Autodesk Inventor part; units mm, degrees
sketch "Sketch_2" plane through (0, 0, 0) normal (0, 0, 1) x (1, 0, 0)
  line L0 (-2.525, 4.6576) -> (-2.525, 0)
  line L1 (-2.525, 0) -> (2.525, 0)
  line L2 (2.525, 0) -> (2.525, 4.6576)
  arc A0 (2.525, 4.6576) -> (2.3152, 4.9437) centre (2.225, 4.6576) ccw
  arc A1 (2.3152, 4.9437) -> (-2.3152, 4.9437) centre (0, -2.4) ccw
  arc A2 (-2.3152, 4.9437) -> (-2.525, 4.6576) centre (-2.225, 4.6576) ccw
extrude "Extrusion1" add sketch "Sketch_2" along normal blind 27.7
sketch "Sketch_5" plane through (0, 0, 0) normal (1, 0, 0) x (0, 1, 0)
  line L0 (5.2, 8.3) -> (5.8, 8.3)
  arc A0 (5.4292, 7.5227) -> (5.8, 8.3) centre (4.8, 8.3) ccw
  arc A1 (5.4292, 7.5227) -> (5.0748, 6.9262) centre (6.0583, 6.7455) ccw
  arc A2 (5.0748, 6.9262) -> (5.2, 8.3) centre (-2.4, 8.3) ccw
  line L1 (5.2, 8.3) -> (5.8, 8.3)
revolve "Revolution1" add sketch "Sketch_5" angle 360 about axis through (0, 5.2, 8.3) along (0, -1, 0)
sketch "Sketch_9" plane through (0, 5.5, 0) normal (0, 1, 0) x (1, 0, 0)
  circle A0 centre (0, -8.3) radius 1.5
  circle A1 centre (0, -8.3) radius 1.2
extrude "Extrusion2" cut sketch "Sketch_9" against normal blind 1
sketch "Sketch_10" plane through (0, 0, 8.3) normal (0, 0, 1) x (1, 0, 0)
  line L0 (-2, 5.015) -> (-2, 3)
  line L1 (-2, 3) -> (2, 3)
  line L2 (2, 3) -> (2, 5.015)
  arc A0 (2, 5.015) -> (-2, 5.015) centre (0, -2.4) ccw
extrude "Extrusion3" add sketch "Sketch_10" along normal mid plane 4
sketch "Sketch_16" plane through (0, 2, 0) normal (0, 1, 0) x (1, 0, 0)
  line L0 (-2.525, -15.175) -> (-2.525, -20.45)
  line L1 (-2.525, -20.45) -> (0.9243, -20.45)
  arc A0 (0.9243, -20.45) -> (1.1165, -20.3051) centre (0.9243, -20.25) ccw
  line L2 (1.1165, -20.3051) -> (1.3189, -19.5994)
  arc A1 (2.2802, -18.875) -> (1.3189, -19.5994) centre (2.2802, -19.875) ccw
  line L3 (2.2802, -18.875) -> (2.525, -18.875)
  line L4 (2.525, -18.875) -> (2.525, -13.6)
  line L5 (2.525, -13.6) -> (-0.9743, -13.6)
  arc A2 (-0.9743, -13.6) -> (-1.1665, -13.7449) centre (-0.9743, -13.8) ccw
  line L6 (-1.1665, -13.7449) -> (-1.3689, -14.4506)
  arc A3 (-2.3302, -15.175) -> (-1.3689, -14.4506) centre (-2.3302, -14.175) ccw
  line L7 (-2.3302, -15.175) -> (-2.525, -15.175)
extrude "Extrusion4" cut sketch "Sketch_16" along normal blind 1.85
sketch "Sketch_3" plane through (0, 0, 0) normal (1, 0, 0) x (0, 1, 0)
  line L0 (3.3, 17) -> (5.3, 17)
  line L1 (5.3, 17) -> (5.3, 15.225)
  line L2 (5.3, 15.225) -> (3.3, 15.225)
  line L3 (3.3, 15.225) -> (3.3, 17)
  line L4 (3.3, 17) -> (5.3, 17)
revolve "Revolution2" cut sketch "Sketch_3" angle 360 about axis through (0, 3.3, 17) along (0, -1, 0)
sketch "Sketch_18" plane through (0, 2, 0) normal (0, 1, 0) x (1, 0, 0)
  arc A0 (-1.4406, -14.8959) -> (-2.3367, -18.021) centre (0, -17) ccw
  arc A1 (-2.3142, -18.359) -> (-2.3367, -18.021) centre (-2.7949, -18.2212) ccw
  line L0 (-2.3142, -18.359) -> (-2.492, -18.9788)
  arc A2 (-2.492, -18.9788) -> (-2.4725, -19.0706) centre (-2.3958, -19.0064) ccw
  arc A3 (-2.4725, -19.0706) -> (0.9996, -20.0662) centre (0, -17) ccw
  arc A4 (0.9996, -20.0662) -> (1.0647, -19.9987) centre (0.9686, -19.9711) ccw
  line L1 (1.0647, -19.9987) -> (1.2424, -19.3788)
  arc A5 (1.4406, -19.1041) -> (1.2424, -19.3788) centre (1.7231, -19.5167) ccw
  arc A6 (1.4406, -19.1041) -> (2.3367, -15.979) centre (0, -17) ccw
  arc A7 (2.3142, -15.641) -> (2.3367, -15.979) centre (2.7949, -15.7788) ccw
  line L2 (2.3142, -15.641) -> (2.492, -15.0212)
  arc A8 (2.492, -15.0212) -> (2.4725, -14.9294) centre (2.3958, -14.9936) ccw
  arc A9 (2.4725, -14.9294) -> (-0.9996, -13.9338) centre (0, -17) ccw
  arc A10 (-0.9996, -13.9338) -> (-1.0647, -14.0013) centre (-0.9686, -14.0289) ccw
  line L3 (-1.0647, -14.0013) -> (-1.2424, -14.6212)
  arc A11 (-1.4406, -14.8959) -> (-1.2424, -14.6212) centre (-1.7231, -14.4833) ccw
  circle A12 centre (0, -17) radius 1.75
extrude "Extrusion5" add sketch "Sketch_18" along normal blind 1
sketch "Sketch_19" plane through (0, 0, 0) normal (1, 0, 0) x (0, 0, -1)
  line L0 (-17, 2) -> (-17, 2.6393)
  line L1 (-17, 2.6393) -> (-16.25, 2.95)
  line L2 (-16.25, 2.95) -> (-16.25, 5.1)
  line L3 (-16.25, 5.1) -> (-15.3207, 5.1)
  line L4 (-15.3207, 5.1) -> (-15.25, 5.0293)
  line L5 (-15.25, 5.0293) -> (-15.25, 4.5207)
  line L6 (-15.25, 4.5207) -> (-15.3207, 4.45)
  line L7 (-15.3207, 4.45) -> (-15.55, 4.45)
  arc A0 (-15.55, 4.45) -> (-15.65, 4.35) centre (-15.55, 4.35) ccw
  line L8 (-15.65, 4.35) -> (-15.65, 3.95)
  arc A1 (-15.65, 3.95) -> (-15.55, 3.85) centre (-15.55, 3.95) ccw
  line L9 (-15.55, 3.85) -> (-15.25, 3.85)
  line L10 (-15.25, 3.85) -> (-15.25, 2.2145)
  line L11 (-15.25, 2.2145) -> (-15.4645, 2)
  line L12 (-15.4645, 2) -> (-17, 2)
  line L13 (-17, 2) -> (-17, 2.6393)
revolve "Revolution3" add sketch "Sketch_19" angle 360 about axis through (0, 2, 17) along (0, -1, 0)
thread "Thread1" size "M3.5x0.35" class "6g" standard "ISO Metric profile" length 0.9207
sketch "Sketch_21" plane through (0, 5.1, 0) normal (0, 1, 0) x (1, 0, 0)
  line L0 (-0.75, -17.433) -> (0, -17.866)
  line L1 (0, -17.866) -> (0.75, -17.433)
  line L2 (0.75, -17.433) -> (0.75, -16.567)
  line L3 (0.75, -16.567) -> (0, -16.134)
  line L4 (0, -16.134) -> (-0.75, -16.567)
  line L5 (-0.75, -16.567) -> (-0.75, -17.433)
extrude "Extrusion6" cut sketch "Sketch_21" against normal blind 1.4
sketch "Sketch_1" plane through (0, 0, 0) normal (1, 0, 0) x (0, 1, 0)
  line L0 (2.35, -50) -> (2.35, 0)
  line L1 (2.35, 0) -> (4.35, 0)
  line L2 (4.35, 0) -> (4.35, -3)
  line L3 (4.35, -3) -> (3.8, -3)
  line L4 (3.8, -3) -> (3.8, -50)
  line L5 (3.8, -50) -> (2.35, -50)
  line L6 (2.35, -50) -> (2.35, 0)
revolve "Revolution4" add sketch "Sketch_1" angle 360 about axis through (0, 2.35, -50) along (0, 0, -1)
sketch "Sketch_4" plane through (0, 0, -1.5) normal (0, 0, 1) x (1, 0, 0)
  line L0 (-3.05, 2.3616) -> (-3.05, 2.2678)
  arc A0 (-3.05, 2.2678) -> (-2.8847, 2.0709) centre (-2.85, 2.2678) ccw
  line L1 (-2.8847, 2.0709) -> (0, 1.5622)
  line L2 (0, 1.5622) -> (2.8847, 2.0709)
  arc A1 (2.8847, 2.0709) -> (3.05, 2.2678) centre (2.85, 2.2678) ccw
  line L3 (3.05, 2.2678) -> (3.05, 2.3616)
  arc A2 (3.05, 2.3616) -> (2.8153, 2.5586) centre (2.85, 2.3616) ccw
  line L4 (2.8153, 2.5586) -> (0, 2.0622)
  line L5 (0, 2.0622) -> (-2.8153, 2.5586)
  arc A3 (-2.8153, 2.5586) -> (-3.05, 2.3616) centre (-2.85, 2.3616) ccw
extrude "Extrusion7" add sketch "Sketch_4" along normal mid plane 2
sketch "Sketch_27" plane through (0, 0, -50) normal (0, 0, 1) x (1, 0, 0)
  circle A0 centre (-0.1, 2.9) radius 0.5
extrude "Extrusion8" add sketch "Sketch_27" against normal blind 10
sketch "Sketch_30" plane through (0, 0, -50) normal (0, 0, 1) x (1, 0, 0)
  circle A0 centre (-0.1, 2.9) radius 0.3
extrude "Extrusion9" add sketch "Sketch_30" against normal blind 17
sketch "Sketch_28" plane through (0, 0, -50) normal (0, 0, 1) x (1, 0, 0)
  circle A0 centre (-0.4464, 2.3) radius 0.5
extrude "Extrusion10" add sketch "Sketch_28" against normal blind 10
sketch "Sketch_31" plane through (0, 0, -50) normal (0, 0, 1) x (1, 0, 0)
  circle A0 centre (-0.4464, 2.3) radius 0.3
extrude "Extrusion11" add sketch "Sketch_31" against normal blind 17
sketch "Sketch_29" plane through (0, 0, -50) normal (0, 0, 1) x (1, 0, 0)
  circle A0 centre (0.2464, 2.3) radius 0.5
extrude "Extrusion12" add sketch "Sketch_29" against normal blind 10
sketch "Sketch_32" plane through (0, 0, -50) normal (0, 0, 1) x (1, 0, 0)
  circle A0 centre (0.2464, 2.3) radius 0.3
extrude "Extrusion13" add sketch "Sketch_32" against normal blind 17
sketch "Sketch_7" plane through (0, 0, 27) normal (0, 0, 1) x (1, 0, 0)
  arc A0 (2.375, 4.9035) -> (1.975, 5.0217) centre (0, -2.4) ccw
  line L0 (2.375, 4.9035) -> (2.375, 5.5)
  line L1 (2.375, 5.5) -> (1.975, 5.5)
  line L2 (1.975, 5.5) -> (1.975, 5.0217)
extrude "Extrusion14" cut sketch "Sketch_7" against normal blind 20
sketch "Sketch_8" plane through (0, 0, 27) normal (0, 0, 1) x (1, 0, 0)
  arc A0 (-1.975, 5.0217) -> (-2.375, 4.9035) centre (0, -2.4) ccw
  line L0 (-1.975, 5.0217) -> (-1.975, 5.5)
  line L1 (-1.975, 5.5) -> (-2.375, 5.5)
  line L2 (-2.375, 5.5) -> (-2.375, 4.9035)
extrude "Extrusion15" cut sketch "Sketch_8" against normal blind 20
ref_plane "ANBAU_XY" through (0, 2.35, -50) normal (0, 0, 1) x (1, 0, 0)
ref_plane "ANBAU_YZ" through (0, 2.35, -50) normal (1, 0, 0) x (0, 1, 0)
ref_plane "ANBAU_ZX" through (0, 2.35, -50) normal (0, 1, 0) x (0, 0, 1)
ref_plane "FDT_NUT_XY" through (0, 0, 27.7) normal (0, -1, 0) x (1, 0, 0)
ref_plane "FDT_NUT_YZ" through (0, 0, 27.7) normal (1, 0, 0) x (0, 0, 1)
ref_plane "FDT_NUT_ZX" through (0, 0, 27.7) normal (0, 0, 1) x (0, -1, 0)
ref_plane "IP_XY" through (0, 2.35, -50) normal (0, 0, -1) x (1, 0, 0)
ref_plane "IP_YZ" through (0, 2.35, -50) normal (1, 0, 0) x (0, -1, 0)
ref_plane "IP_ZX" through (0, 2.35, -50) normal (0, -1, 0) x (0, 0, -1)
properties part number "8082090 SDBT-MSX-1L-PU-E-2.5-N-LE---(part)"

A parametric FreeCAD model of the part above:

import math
import FreeCAD as App
import Part
import Sketcher
from FreeCAD import Vector
Q = App.Units.Quantity

doc = App.newDocument("Part")
params = doc.addObject("Spreadsheet::Sheet", "Params")
for row, (alias, value) in enumerate([
    ("sketch1_radius", "0.3 mm"),
    ("sketch1_radius2", "7.7 mm"),
    ("sketch1_width", "5.05 mm"),
    ("pad1_length", "27.7 mm"),
    ("sketch2_radius", "1 mm"),
    ("sketch2_radius2", "7.6 mm"),
    ("sketch2_width", "0.6 mm"),
    ("revolution_angle", "360 deg"),
    ("sketch3_diameter", "3 mm"),
    ("sketch3_diameter2", "2.4 mm"),
    ("pocket1_length", "1 mm"),
    ("sketch4_width", "4 mm"),
    ("sketch4_radius", "7.68 mm"),
    ("pad2_length", "4 mm"),
    ("sketch5_radius", "1 mm"),
    ("sketch5_radius2", "0.2 mm"),
    ("pocket2_length", "1.85 mm"),
    ("sketch6_width", "2 mm"),
    ("groove_angle", "360 deg"),
    ("sketch7_diameter", "3.5 mm"),
    ("sketch7_radius", "0.5 mm"),
    ("sketch7_radius2", "0.1 mm"),
    ("sketch7_radius3", "2.55 mm"),
    ("pad3_length", "1 mm"),
    ("sketch8_radius", "0.1 mm"),
    ("sketch8_width", "0.4 mm"),
    ("sketch8_width2", "3.1 mm"),
    ("sketch8_height", "0.3 mm"),
    ("sketch8_length", "0.1 mm"),
    ("revolution2_angle", "360 deg"),
    ("pocket3_length", "1.4 mm"),
    ("sketch10_width", "2 mm"),
    ("sketch10_height", "50 mm"),
    ("sketch10_height2", "47 mm"),
    ("sketch10_width2", "1.45 mm"),
    ("revolution3_angle", "360 deg"),
    ("sketch11_radius", "0.2 mm"),
    ("pad4_length", "2 mm"),
    ("sketch12_diameter", "1 mm"),
    ("pad5_length", "10 mm"),
    ("sketch13_diameter", "0.6 mm"),
    ("pad6_length", "17 mm"),
    ("sketch14_diameter", "1 mm"),
    ("pad7_length", "10 mm"),
    ("sketch15_diameter", "0.6 mm"),
    ("pad8_length", "17 mm"),
    ("sketch16_diameter", "1 mm"),
    ("pad9_length", "10 mm"),
    ("sketch17_diameter", "0.6 mm"),
    ("pad10_length", "17 mm"),
    ("sketch18_width", "0.4 mm"),
    ("pocket4_length", "20 mm"),
    ("sketch19_width", "0.4 mm"),
    ("pocket5_length", "20 mm"),
], start=1):
    params.set(f"A{row}", alias)
    params.set(f"B{row}", "=" + value)
    params.setAlias(f"B{row}", alias)

body = doc.addObject("PartDesign::Body", "Body")

# Sketch on XY plane
sketch1 = doc.addObject("Sketcher::SketchObject", "Sketch")
body.addObject(sketch1)
sketch1.AttachmentSupport = (doc.XY_Plane, [""])
sketch1.MapMode = "FlatFace"
sketch1.addGeometry([
    Part.ArcOfCircle(Part.Circle(Vector(-2.23, 4.66, 0), Vector(0, 0, 1), 0.3), math.radians(107), math.radians(180)),  # 0
    Part.LineSegment(Vector(-2.52, 4.66, 0), Vector(-2.52, 0, 0)),  # 1
    Part.LineSegment(Vector(-2.52, 0, 0), Vector(2.52, 0, 0)),  # 2
    Part.LineSegment(Vector(2.52, 0, 0), Vector(2.52, 4.66, 0)),  # 3
    Part.ArcOfCircle(Part.Circle(Vector(2.23, 4.66, 0), Vector(0, 0, 1), 0.3), math.radians(0), math.radians(73)),  # 4
    Part.ArcOfCircle(Part.Circle(Vector(0, -2.4, 0), Vector(0, 0, 1), 7.7), math.radians(73), math.radians(107)),  # 5
], False)
sketch1.addConstraint([
    Sketcher.Constraint("Tangent", 0, 2, 1, 1),
    Sketcher.Constraint("Coincident", 1, 2, 2, 1),
    Sketcher.Constraint("Coincident", 2, 2, 3, 1),
    Sketcher.Constraint("Tangent", 3, 2, 4, 1),
    Sketcher.Constraint("Tangent", 4, 2, 5, 1),
    Sketcher.Constraint("Tangent", 5, 2, 0, 1),
    Sketcher.Constraint("Vertical", 1),
    Sketcher.Constraint("Horizontal", 2),
    Sketcher.Constraint("Vertical", 3),
    Sketcher.Constraint("Equal", 0, 4),
    Sketcher.Constraint("Symmetric", 1, 2, 2, 2, -1, 1),
    Sketcher.Constraint("PointOnObject", 5, 3, -2),
    Sketcher.Constraint("Radius", 0, 0.3),
    Sketcher.Constraint("Radius", 5, 7.7),
    Sketcher.Constraint("DistanceX", 2, 1, 2, 2, 5.05),
    Sketcher.Constraint("DistanceY", 5, 3, -1, 1, 2.4),
])
sketch1.setExpression("Constraints[12]", "Params.sketch1_radius")
sketch1.setExpression("Constraints[13]", "Params.sketch1_radius2")
sketch1.setExpression("Constraints[14]", "Params.sketch1_width")
pad1 = doc.addObject("PartDesign::Pad", "Pad")
body.addObject(pad1)
pad1.Profile = sketch1
pad1.setExpression("Length", "Params.pad1_length")

# Sketch on YZ plane
sketch2 = doc.addObject("Sketcher::SketchObject", "Sketch001")
body.addObject(sketch2)
sketch2.AttachmentSupport = (doc.YZ_Plane, [""])
sketch2.MapMode = "FlatFace"
sketch2.addGeometry([
    Part.LineSegment(Vector(5.8, 8.3, 0), Vector(5.2, 8.3, 0)),
    Part.ArcOfCircle(Part.Circle(Vector(-2.4, 8.3, 0), Vector(0, 0, 1), 7.6), math.radians(-10.41), math.radians(0)),
    Part.ArcOfCircle(Part.Circle(Vector(6.1, 6.7, 0), Vector(0, 0, 1), 1), math.radians(129), math.radians(170)),
    Part.ArcOfCircle(Part.Circle(Vector(4.8, 8.3, 0), Vector(0, 0, 1), 1), math.radians(-51), math.radians(0)),
], False)
sketch2.addGeometry(Part.LineSegment(Vector(6.1, 8.3, 0), Vector(-2.4, 8.3, 0)), True)  # axis
sketch2.addConstraint([
    Sketcher.Constraint("Coincident", 0, 2, 1, 2),
    Sketcher.Constraint("Tangent", 1, 1, 2, 2),
    Sketcher.Constraint("Tangent", 2, 1, 3, 1),
    Sketcher.Constraint("Coincident", 3, 2, 0, 1),
    Sketcher.Constraint("Horizontal", 0),
    Sketcher.Constraint("Horizontal", 4),
    Sketcher.Constraint("Coincident", 4, 2, 1, 3),
    Sketcher.Constraint("Equal", 2, 3),
    Sketcher.Constraint("Horizontal", 1, 3, 3, 3),
    Sketcher.Constraint("Horizontal", 3, 3, 0, 2),
    Sketcher.Constraint("Vertical", 2, 3, 4, 1),
    Sketcher.Constraint("Radius", 2, 1.0),
    Sketcher.Constraint("Radius", 1, 7.6),
    Sketcher.Constraint("DistanceX", 0, 2, 0, 1, 0.6),
    Sketcher.Constraint("DistanceX", 1, 3, -1, 1, 2.4),
    Sketcher.Constraint("DistanceY", -1, 1, 1, 3, 8.3),
])
sketch2.setExpression("Constraints[11]", "Params.sketch2_radius")
sketch2.setExpression("Constraints[12]", "Params.sketch2_radius2")
sketch2.setExpression("Constraints[13]", "Params.sketch2_width")
revolution = doc.addObject("PartDesign::Revolution", "Revolution")
body.addObject(revolution)
revolution.Profile = sketch2
revolution.ReferenceAxis = (sketch2, ["Axis0"])
revolution.setExpression("Angle", "Params.revolution_angle")

# Sketch on XZ plane
sketch3 = doc.addObject("Sketcher::SketchObject", "Sketch002")
body.addObject(sketch3)
sketch3.AttachmentSupport = (doc.XZ_Plane, [""])
sketch3.MapMode = "FlatFace"
sketch3.AttachmentOffset = App.Placement(Vector(0, 0, -5.5), App.Rotation())
sketch3.addGeometry([
    Part.Circle(Vector(0, 8.3, 0), Vector(0, 0, 1), 1.5),
    Part.Circle(Vector(0, 8.3, 0), Vector(0, 0, 1), 1.2),
], False)
sketch3.addConstraint([
    Sketcher.Constraint("Coincident", 1, 3, 0, 3),
    Sketcher.Constraint("PointOnObject", 0, 3, -2),
    Sketcher.Constraint("Diameter", 0, 3.0),
    Sketcher.Constraint("Diameter", 1, 2.4),
    Sketcher.Constraint("DistanceY", -1, 1, 0, 3, 8.3),
])
sketch3.setExpression("Constraints[2]", "Params.sketch3_diameter")
sketch3.setExpression("Constraints[3]", "Params.sketch3_diameter2")
pocket1 = doc.addObject("PartDesign::Pocket", "Pocket")
body.addObject(pocket1)
pocket1.Profile = sketch3
pocket1.setExpression("Length", "Params.pocket1_length")
pocket1.Reversed = True

# Sketch on XY plane
sketch4 = doc.addObject("Sketcher::SketchObject", "Sketch003")
body.addObject(sketch4)
sketch4.AttachmentSupport = (doc.XY_Plane, [""])
sketch4.MapMode = "FlatFace"
sketch4.AttachmentOffset = App.Placement(Vector(0, 0, 8.3), App.Rotation())
sketch4.addGeometry([
    Part.ArcOfCircle(Part.Circle(Vector(0, -2.4, 0), Vector(0, 0, 1), 7.7), math.radians(75), math.radians(105)),
    Part.LineSegment(Vector(-2, 5, 0), Vector(-2, 3, 0)),
    Part.LineSegment(Vector(-2, 3, 0), Vector(2, 3, 0)),
    Part.LineSegment(Vector(2, 3, 0), Vector(2, 5, 0)),
], False)
sketch4.addConstraint([
    Sketcher.Constraint("Coincident", 0, 2, 1, 1),
    Sketcher.Constraint("Coincident", 1, 2, 2, 1),
    Sketcher.Constraint("Coincident", 2, 2, 3, 1),
    Sketcher.Constraint("Coincident", 3, 2, 0, 1),
    Sketcher.Constraint("Vertical", 1),
    Sketcher.Constraint("Horizontal", 2),
    Sketcher.Constraint("Vertical", 3),
    Sketcher.Constraint("Symmetric", 0, 2, 3, 2, -2),
    Sketcher.Constraint("DistanceX", 2, 1, 2, 2, 4.0),
    Sketcher.Constraint("Radius", 0, 7.68),
    Sketcher.Constraint("DistanceY", -1, 1, 1, 2, 3.0),
    Sketcher.Constraint("DistanceY", 0, 3, -1, 1, 2.4),
])
sketch4.setExpression("Constraints[8]", "Params.sketch4_width")
sketch4.setExpression("Constraints[9]", "Params.sketch4_radius")
pad2 = doc.addObject("PartDesign::Pad", "Pad001")
body.addObject(pad2)
pad2.Profile = sketch4
pad2.setExpression("Length", "Params.pad2_length")
pad2.Midplane = True

# Sketch on XZ plane
sketch5 = doc.addObject("Sketcher::SketchObject", "Sketch004")
body.addObject(sketch5)
sketch5.AttachmentSupport = (doc.XZ_Plane, [""])
sketch5.MapMode = "FlatFace"
sketch5.AttachmentOffset = App.Placement(Vector(0, 0, -2), App.Rotation())
sketch5.addGeometry([
    Part.LineSegment(Vector(-2.33, 15.18, 0), Vector(-2.52, 15.18, 0)),  # 0
    Part.LineSegment(Vector(-2.52, 15.18, 0), Vector(-2.52, 20.45, 0)),  # 1
    Part.LineSegment(Vector(-2.52, 20.45, 0), Vector(0.92, 20.45, 0)),  # 2
    Part.ArcOfCircle(Part.Circle(Vector(0.92, 20.25, 0), Vector(0, 0, 1), 0.2), math.radians(16), math.radians(90)),  # 3
    Part.LineSegment(Vector(1.12, 20.31, 0), Vector(1.32, 19.6, 0)),  # 4
    Part.ArcOfCircle(Part.Circle(Vector(2.28, 19.88, 0), Vector(0, 0, 1), 1), math.radians(-164), math.radians(-90)),  # 5
    Part.LineSegment(Vector(2.28, 18.88, 0), Vector(2.52, 18.88, 0)),  # 6
    Part.LineSegment(Vector(2.52, 18.88, 0), Vector(2.52, 13.6, 0)),  # 7
    Part.LineSegment(Vector(2.52, 13.6, 0), Vector(-0.97, 13.6, 0)),  # 8
    Part.ArcOfCircle(Part.Circle(Vector(-0.97, 13.8, 0), Vector(0, 0, 1), 0.2), math.radians(-164), math.radians(-90)),  # 9
    Part.LineSegment(Vector(-1.17, 13.74, 0), Vector(-1.37, 14.45, 0)),  # 10
    Part.ArcOfCircle(Part.Circle(Vector(-2.33, 14.18, 0), Vector(0, 0, 1), 1), math.radians(16), math.radians(90)),  # 11
], False)
sketch5.addConstraint([
    Sketcher.Constraint("Coincident", 0, 2, 1, 1),
    Sketcher.Constraint("Coincident", 1, 2, 2, 1),
    Sketcher.Constraint("Tangent", 2, 2, 3, 2),
    Sketcher.Constraint("Tangent", 3, 1, 4, 1),
    Sketcher.Constraint("Tangent", 4, 2, 5, 1),
    Sketcher.Constraint("Tangent", 5, 2, 6, 1),
    Sketcher.Constraint("Coincident", 6, 2, 7, 1),
    Sketcher.Constraint("Coincident", 7, 2, 8, 1),
    Sketcher.Constraint("Tangent", 8, 2, 9, 2),
    Sketcher.Constraint("Tangent", 9, 1, 10, 1),
    Sketcher.Constraint("Tangent", 10, 2, 11, 1),
    Sketcher.Constraint("Tangent", 11, 2, 0, 1),
    Sketcher.Constraint("Horizontal", 0),
    Sketcher.Constraint("Vertical", 1),
    Sketcher.Constraint("Horizontal", 2),
    Sketcher.Constraint("Horizontal", 6),
    Sketcher.Constraint("Vertical", 7),
    Sketcher.Constraint("Horizontal", 8),
    Sketcher.Constraint("Equal", 3, 9),
    Sketcher.Constraint("Equal", 5, 11),
    Sketcher.Constraint("Parallel", 4, 10),
    Sketcher.Constraint("Equal", 1, 7),
    Sketcher.Constraint("Radius", 5, 1.0),
    Sketcher.Constraint("Radius", 3, 0.2),
    Sketcher.Constraint("DistanceY", -1, 1, 9, 3, 13.8),
    Sketcher.Constraint("DistanceY", 11, 3, 5, 3, 5.7),
    Sketcher.Constraint("DistanceY", 1, 1, 1, 2, 5.275),
    Sketcher.Constraint("DistanceY", 5, 3, 3, 1, 0.43),
    Sketcher.Constraint("DistanceX", 0, 2, 7, 2, 5.05),
    Sketcher.Constraint("DistanceX", 0, 2, 0, 1, 0.1948),
    Sketcher.Constraint("DistanceX", 2, 1, 2, 2, 3.4493),
    Sketcher.Constraint("DistanceX", 0, 2, -1, 1, 2.525),
])
sketch5.setExpression("Constraints[22]", "Params.sketch5_radius")
sketch5.setExpression("Constraints[23]", "Params.sketch5_radius2")
pocket2 = doc.addObject("PartDesign::Pocket", "Pocket001")
body.addObject(pocket2)
pocket2.Profile = sketch5
pocket2.setExpression("Length", "Params.pocket2_length")

# Sketch on YZ plane
sketch6 = doc.addObject("Sketcher::SketchObject", "Sketch005")
body.addObject(sketch6)
sketch6.AttachmentSupport = (doc.YZ_Plane, [""])
sketch6.MapMode = "FlatFace"
sketch6.addGeometry([
    Part.LineSegment(Vector(5.3, 17, 0), Vector(3.3, 17, 0)),
    Part.LineSegment(Vector(3.3, 17, 0), Vector(3.3, 15.2, 0)),
    Part.LineSegment(Vector(3.3, 15.2, 0), Vector(5.3, 15.2, 0)),
    Part.LineSegment(Vector(5.3, 15.2, 0), Vector(5.3, 17, 0)),
], False)
sketch6.addGeometry(Part.LineSegment(Vector(5.3, 17, 0), Vector(3.3, 17, 0)), True)  # axis
sketch6.addConstraint([
    Sketcher.Constraint("Coincident", 0, 2, 1, 1),
    Sketcher.Constraint("Coincident", 1, 2, 2, 1),
    Sketcher.Constraint("Coincident", 2, 2, 3, 1),
    Sketcher.Constraint("Coincident", 3, 2, 0, 1),
    Sketcher.Constraint("Horizontal", 0),
    Sketcher.Constraint("Vertical", 1),
    Sketcher.Constraint("Horizontal", 2),
    Sketcher.Constraint("Vertical", 3),
    Sketcher.Constraint("Horizontal", 4),
    Sketcher.Constraint("Coincident", 4, 1, 3, 2),
    Sketcher.Constraint("Vertical", 1, 2, 4, 2),
    Sketcher.Constraint("DistanceX", 0, 2, 0, 1, 2.0),
    Sketcher.Constraint("DistanceY", -1, 1, 0, 2, 17.0),
    Sketcher.Constraint("DistanceX", -1, 1, 0, 2, 3.3),
    Sketcher.Constraint("DistanceY", 1, 2, 1, 1, 1.775),
])
sketch6.setExpression("Constraints[11]", "Params.sketch6_width")
groove = doc.addObject("PartDesign::Groove", "Groove")
body.addObject(groove)
groove.Profile = sketch6
groove.ReferenceAxis = (sketch6, ["Axis0"])
groove.setExpression("Angle", "Params.groove_angle")

# Sketch on XZ plane
sketch7 = doc.addObject("Sketcher::SketchObject", "Sketch006")
body.addObject(sketch7)
sketch7.AttachmentSupport = (doc.XZ_Plane, [""])
sketch7.MapMode = "FlatFace"
sketch7.AttachmentOffset = App.Placement(Vector(0, 0, -2), App.Rotation())
sketch7.addGeometry([
    Part.ArcOfCircle(Part.Circle(Vector(-1.72, 14.48, 0), Vector(0, 0, 1), 0.5), math.radians(16), math.radians(56)),  # 0
    Part.ArcOfCircle(Part.Circle(Vector(0, 17, 0), Vector(0, 0, 1), 2.55), math.radians(156), math.radians(236)),  # 1
    Part.ArcOfCircle(Part.Circle(Vector(-2.79, 18.22, 0), Vector(0, 0, 1), 0.5), math.radians(-24), math.radians(16)),  # 2
    Part.LineSegment(Vector(-2.31, 18.36, 0), Vector(-2.49, 18.98, 0)),  # 3
    Part.ArcOfCircle(Part.Circle(Vector(-2.4, 19.01, 0), Vector(0, 0, 1), 0.1), math.radians(140), math.radians(196)),  # 4
    Part.ArcOfCircle(Part.Circle(Vector(0, 17, 0), Vector(0, 0, 1), 3.23), math.radians(72), math.radians(140)),  # 5
    Part.ArcOfCircle(Part.Circle(Vector(0.97, 19.97, 0), Vector(0, 0, 1), 0.1), math.radians(16), math.radians(72)),  # 6
    Part.LineSegment(Vector(1.06, 20, 0), Vector(1.24, 19.38, 0)),  # 7
    Part.ArcOfCircle(Part.Circle(Vector(1.72, 19.52, 0), Vector(0, 0, 1), 0.5), math.radians(-164), math.radians(-124)),  # 8
    Part.ArcOfCircle(Part.Circle(Vector(0, 17, 0), Vector(0, 0, 1), 2.55), math.radians(-24), math.radians(56)),  # 9
    Part.ArcOfCircle(Part.Circle(Vector(2.79, 15.78, 0), Vector(0, 0, 1), 0.5), math.radians(156), math.radians(196)),  # 10
    Part.LineSegment(Vector(2.31, 15.64, 0), Vector(2.49, 15.02, 0)),  # 11
    Part.ArcOfCircle(Part.Circle(Vector(2.4, 14.99, 0), Vector(0, 0, 1), 0.1), math.radians(-40), math.radians(16)),  # 12
    Part.ArcOfCircle(Part.Circle(Vector(0, 17, 0), Vector(0, 0, 1), 3.23), math.radians(-108), math.radians(-40)),  # 13
    Part.ArcOfCircle(Part.Circle(Vector(-0.97, 14.03, 0), Vector(0, 0, 1), 0.1), math.radians(-164), math.radians(-108)),  # 14
    Part.LineSegment(Vector(-1.06, 14, 0), Vector(-1.24, 14.62, 0)),  # 15
    Part.Circle(Vector(0, 17, 0), Vector(0, 0, 1), 1.75),  # 16
], False)
sketch7.addConstraint([
    Sketcher.Constraint("Tangent", 0, 2, 1, 2),
    Sketcher.Constraint("Tangent", 1, 1, 2, 1),
    Sketcher.Constraint("Tangent", 2, 2, 3, 1),
    Sketcher.Constraint("Tangent", 3, 2, 4, 2),
    Sketcher.Constraint("Tangent", 4, 1, 5, 2),
    Sketcher.Constraint("Tangent", 5, 1, 6, 2),
    Sketcher.Constraint("Coincident", 6, 1, 7, 1),
    Sketcher.Constraint("Tangent", 7, 2, 8, 1),
    Sketcher.Constraint("Tangent", 8, 2, 9, 2),
    Sketcher.Constraint("Tangent", 9, 1, 10, 1),
    Sketcher.Constraint("Tangent", 10, 2, 11, 1),
    Sketcher.Constraint("Tangent", 11, 2, 12, 2),
    Sketcher.Constraint("Tangent", 12, 1, 13, 2),
    Sketcher.Constraint("Tangent", 13, 1, 14, 2),
    Sketcher.Constraint("Coincident", 14, 1, 15, 1),
    Sketcher.Constraint("Tangent", 15, 2, 0, 1),
    Sketcher.Constraint("Coincident", 5, 3, 1, 3),
    Sketcher.Constraint("Coincident", 9, 3, 1, 3),
    Sketcher.Constraint("Coincident", 13, 3, 1, 3),
    Sketcher.Constraint("Coincident", 16, 3, 1, 3),
    Sketcher.Constraint("Equal", 0, 2),
    Sketcher.Constraint("Equal", 4, 6),
    Sketcher.Constraint("Equal", 2, 8),
    Sketcher.Constraint("Equal", 1, 9),
    Sketcher.Constraint("Equal", 8, 10),
    Sketcher.Constraint("Equal", 6, 12),
    Sketcher.Constraint("Equal", 5, 13),
    Sketcher.Constraint("Equal", 12, 14),
    Sketcher.Constraint("PointOnObject", 1, 3, -2),
    Sketcher.Constraint("Parallel", 3, 7),
    Sketcher.Constraint("Parallel", 7, 11),
    Sketcher.Constraint("Parallel", 11, 15),
    Sketcher.Constraint("Equal", 3, 7),
    Sketcher.Constraint("Equal", 7, 11),
    Sketcher.Constraint("Equal", 11, 15),
    Sketcher.Constraint("Diameter", 16, 3.5),
    Sketcher.Constraint("Radius", 0, 0.5),
    Sketcher.Constraint("Radius", 4, 0.1),
    Sketcher.Constraint("Radius", 1, 2.55),
    Sketcher.Constraint("DistanceY", -1, 1, 1, 3, 17.0),
    Sketcher.Constraint("Radius", 5, 3.225),
    Sketcher.Constraint("DistanceY", 2, 3, 6, 3, 1.75),
    Sketcher.Constraint("DistanceY", 7, 2, 6, 1, 0.62),
    Sketcher.Constraint("DistanceX", 0, 3, -1, 1, 1.723),
    Sketcher.Constraint("DistanceX", 2, 3, -1, 1, 2.795),
])
sketch7.setExpression("Constraints[35]", "Params.sketch7_diameter")
sketch7.setExpression("Constraints[36]", "Params.sketch7_radius")
sketch7.setExpression("Constraints[37]", "Params.sketch7_radius2")
sketch7.setExpression("Constraints[38]", "Params.sketch7_radius3")
pad3 = doc.addObject("PartDesign::Pad", "Pad002")
body.addObject(pad3)
pad3.Profile = sketch7
pad3.setExpression("Length", "Params.pad3_length")
pad3.Reversed = True

# Sketch on YZ plane
sketch8 = doc.addObject("Sketcher::SketchObject", "Sketch007")
body.addObject(sketch8)
sketch8.AttachmentSupport = (doc.YZ_Plane, [""])
sketch8.MapMode = "FlatFace"
sketch8.addGeometry([
    Part.LineSegment(Vector(2.64, 17, 0), Vector(2, 17, 0)),  # 0
    Part.LineSegment(Vector(2, 17, 0), Vector(2, 15.46, 0)),  # 1
    Part.LineSegment(Vector(2, 15.46, 0), Vector(2.21, 15.25, 0)),  # 2
    Part.LineSegment(Vector(2.21, 15.25, 0), Vector(3.85, 15.25, 0)),  # 3
    Part.LineSegment(Vector(3.85, 15.25, 0), Vector(3.85, 15.55, 0)),  # 4
    Part.ArcOfCircle(Part.Circle(Vector(3.95, 15.55, 0), Vector(0, 0, 1), 0.1), math.radians(90), math.radians(180)),  # 5
    Part.LineSegment(Vector(3.95, 15.65, 0), Vector(4.35, 15.65, 0)),  # 6
    Part.ArcOfCircle(Part.Circle(Vector(4.35, 15.55, 0), Vector(0, 0, 1), 0.1), math.radians(0), math.radians(90)),  # 7
    Part.LineSegment(Vector(4.45, 15.55, 0), Vector(4.45, 15.32, 0)),  # 8
    Part.LineSegment(Vector(4.45, 15.32, 0), Vector(4.52, 15.25, 0)),  # 9
    Part.LineSegment(Vector(4.52, 15.25, 0), Vector(5.03, 15.25, 0)),  # 10
    Part.LineSegment(Vector(5.03, 15.25, 0), Vector(5.1, 15.32, 0)),  # 11
    Part.LineSegment(Vector(5.1, 15.32, 0), Vector(5.1, 16.25, 0)),  # 12
    Part.LineSegment(Vector(5.1, 16.25, 0), Vector(2.95, 16.25, 0)),  # 13
    Part.LineSegment(Vector(2.95, 16.25, 0), Vector(2.64, 17, 0)),  # 14
], False)
sketch8.addGeometry(Part.LineSegment(Vector(5.1, 17, 0), Vector(2, 17, 0)), True)  # axis
sketch8.addConstraint([
    Sketcher.Constraint("Coincident", 0, 2, 1, 1),
    Sketcher.Constraint("Coincident", 1, 2, 2, 1),
    Sketcher.Constraint("Coincident", 2, 2, 3, 1),
    Sketcher.Constraint("Coincident", 3, 2, 4, 1),
    Sketcher.Constraint("Tangent", 4, 2, 5, 2),
    Sketcher.Constraint("Tangent", 5, 1, 6, 1),
    Sketcher.Constraint("Tangent", 6, 2, 7, 2),
    Sketcher.Constraint("Tangent", 7, 1, 8, 1),
    Sketcher.Constraint("Coincident", 8, 2, 9, 1),
    Sketcher.Constraint("Coincident", 9, 2, 10, 1),
    Sketcher.Constraint("Coincident", 10, 2, 11, 1),
    Sketcher.Constraint("Coincident", 11, 2, 12, 1),
    Sketcher.Constraint("Coincident", 12, 2, 13, 1),
    Sketcher.Constraint("Coincident", 13, 2, 14, 1),
    Sketcher.Constraint("Coincident", 14, 2, 0, 1),
    Sketcher.Constraint("Horizontal", 0),
    Sketcher.Constraint("Vertical", 1),
    Sketcher.Constraint("Horizontal", 3),
    Sketcher.Constraint("Vertical", 4),
    Sketcher.Constraint("Horizontal", 6),
    Sketcher.Constraint("Vertical", 8),
    Sketcher.Constraint("Horizontal", 10),
    Sketcher.Constraint("Vertical", 12),
    Sketcher.Constraint("Horizontal", 13),
    Sketcher.Constraint("Horizontal", 15),
    Sketcher.Constraint("Coincident", 15, 2, 0, 2),
    Sketcher.Constraint("Equal", 5, 7),
    Sketcher.Constraint("Parallel", 2, 9),
    Sketcher.Constraint("Perpendicular", 9, 11),
    Sketcher.Constraint("Horizontal", 3, 2, 9, 2),
    Sketcher.Constraint("Horizontal", 8, 2, 11, 2),
    Sketcher.Constraint("Vertical", 12, 2, 15, 1),
    Sketcher.Constraint("Equal", 9, 11),
    Sketcher.Constraint("Radius", 5, 0.1),
    Sketcher.Constraint("DistanceX", 6, 1, 6, 2, 0.4),
    Sketcher.Constraint("DistanceX", 15, 2, 15, 1, 3.1),
    Sketcher.Constraint("DistanceY", 4, 1, 4, 2, 0.3),
    Sketcher.Constraint("DistanceX", -1, 1, 0, 2, 2.0),
    Sketcher.Constraint("DistanceY", -1, 1, 0, 2, 17.0),
    Sketcher.Constraint("DistanceY", 10, 2, 12, 2, 1.0),
    Sketcher.Constraint("DistanceX", 13, 2, 5, 1, 1.0),
    Sketcher.Constraint("Distance", 9, 0.1),
    Sketcher.Constraint("DistanceX", 13, 2, 13, 1, 2.15),
    Sketcher.Constraint("DistanceY", -1, 1, 5, 3, 15.55),
    Sketcher.Constraint("DistanceX", 0, 2, 0, 1, 0.6393),
    Sketcher.Constraint("DistanceX", 3, 1, 3, 2, 1.6355),
])
sketch8.setExpression("Constraints[33]", "Params.sketch8_radius")
sketch8.setExpression("Constraints[34]", "Params.sketch8_width")
sketch8.setExpression("Constraints[35]", "Params.sketch8_width2")
sketch8.setExpression("Constraints[36]", "Params.sketch8_height")
sketch8.setExpression("Constraints[41]", "Params.sketch8_length")
revolution2 = doc.addObject("PartDesign::Revolution", "Revolution001")
body.addObject(revolution2)
revolution2.Profile = sketch8
revolution2.ReferenceAxis = (sketch8, ["Axis0"])
revolution2.setExpression("Angle", "Params.revolution2_angle")

# Sketch on XZ plane
sketch9 = doc.addObject("Sketcher::SketchObject", "Sketch008")
body.addObject(sketch9)
sketch9.AttachmentSupport = (doc.XZ_Plane, [""])
sketch9.MapMode = "FlatFace"
sketch9.AttachmentOffset = App.Placement(Vector(0, 0, -5.1), App.Rotation())
sketch9.addGeometry([
    Part.LineSegment(Vector(-0.8, 16.6, 0), Vector(-0.8, 17.4, 0)),  # 0
    Part.LineSegment(Vector(-0.8, 17.4, 0), Vector(0, 17.9, 0)),  # 1
    Part.LineSegment(Vector(0, 17.9, 0), Vector(0.8, 17.4, 0)),  # 2
    Part.LineSegment(Vector(0.8, 17.4, 0), Vector(0.8, 16.6, 0)),  # 3
    Part.LineSegment(Vector(0.8, 16.6, 0), Vector(0, 16.1, 0)),  # 4
    Part.LineSegment(Vector(0, 16.1, 0), Vector(-0.8, 16.6, 0)),  # 5
], False)
sketch9.addConstraint([
    Sketcher.Constraint("Coincident", 0, 2, 1, 1),
    Sketcher.Constraint("Coincident", 1, 2, 2, 1),
    Sketcher.Constraint("Coincident", 2, 2, 3, 1),
    Sketcher.Constraint("Coincident", 3, 2, 4, 1),
    Sketcher.Constraint("Coincident", 4, 2, 5, 1),
    Sketcher.Constraint("Coincident", 5, 2, 0, 1),
    Sketcher.Constraint("Vertical", 0),
    Sketcher.Constraint("Vertical", 3),
    Sketcher.Constraint("Symmetric", 0, 2, 2, 2, -2),
    Sketcher.Constraint("PointOnObject", 1, 2, -2),
    Sketcher.Constraint("PointOnObject", 4, 2, -2),
    Sketcher.Constraint("Parallel", 1, 4),
    Sketcher.Constraint("Parallel", 2, 5),
    Sketcher.Constraint("Angle", 1, Q("29.9993 deg")),
    Sketcher.Constraint("DistanceX", 0, 2, 2, 2, 1.5),
    Sketcher.Constraint("DistanceY", 0, 1, 0, 2, 0.866),
    Sketcher.Constraint("DistanceY", -1, 1, 0, 2, 17.433),
])
pocket3 = doc.addObject("PartDesign::Pocket", "Pocket002")
body.addObject(pocket3)
pocket3.Profile = sketch9
pocket3.setExpression("Length", "Params.pocket3_length")
pocket3.Reversed = True

# Sketch on YZ plane
sketch10 = doc.addObject("Sketcher::SketchObject", "Sketch009")
body.addObject(sketch10)
sketch10.AttachmentSupport = (doc.YZ_Plane, [""])
sketch10.MapMode = "FlatFace"
sketch10.addGeometry([
    Part.LineSegment(Vector(2.4, 0, 0), Vector(2.4, -50, 0)),  # 0
    Part.LineSegment(Vector(2.4, -50, 0), Vector(3.8, -50, 0)),  # 1
    Part.LineSegment(Vector(3.8, -50, 0), Vector(3.8, -3, 0)),  # 2
    Part.LineSegment(Vector(3.8, -3, 0), Vector(4.3, -3, 0)),  # 3
    Part.LineSegment(Vector(4.3, -3, 0), Vector(4.3, 0, 0)),  # 4
    Part.LineSegment(Vector(4.3, 0, 0), Vector(2.4, 0, 0)),  # 5
], False)
sketch10.addGeometry(Part.LineSegment(Vector(2.4, 0, 0), Vector(2.4, -50, 0)), True)  # axis
sketch10.addConstraint([
    Sketcher.Constraint("Coincident", 0, 2, 1, 1),
    Sketcher.Constraint("Coincident", 1, 2, 2, 1),
    Sketcher.Constraint("Coincident", 2, 2, 3, 1),
    Sketcher.Constraint("Coincident", 3, 2, 4, 1),
    Sketcher.Constraint("Coincident", 4, 2, 5, 1),
    Sketcher.Constraint("Coincident", 5, 2, 0, 1),
    Sketcher.Constraint("Vertical", 0),
    Sketcher.Constraint("Horizontal", 1),
    Sketcher.Constraint("Vertical", 2),
    Sketcher.Constraint("Horizontal", 3),
    Sketcher.Constraint("Vertical", 4),
    Sketcher.Constraint("Horizontal", 5),
    Sketcher.Constraint("Vertical", 6),
    Sketcher.Constraint("Coincident", 6, 1, 5, 2),
    Sketcher.Constraint("PointOnObject", 4, 2, -1),
    Sketcher.Constraint("Horizontal", 1, 2, 6, 2),
    Sketcher.Constraint("DistanceX", 5, 2, 5, 1, 2.0),
    Sketcher.Constraint("DistanceY", 0, 2, 0, 1, 50.0),
    Sketcher.Constraint("DistanceY", 2, 1, 2, 2, 47.0),
    Sketcher.Constraint("DistanceX", 1, 1, 1, 2, 1.45),
    Sketcher.Constraint("DistanceX", -1, 1, 1, 2, 3.8),
])
sketch10.setExpression("Constraints[16]", "Params.sketch10_width")
sketch10.setExpression("Constraints[17]", "Params.sketch10_height")
sketch10.setExpression("Constraints[18]", "Params.sketch10_height2")
sketch10.setExpression("Constraints[19]", "Params.sketch10_width2")
revolution3 = doc.addObject("PartDesign::Revolution", "Revolution002")
body.addObject(revolution3)
revolution3.Profile = sketch10
revolution3.ReferenceAxis = (sketch10, ["Axis0"])
revolution3.setExpression("Angle", "Params.revolution3_angle")

# Sketch on XY plane
sketch11 = doc.addObject("Sketcher::SketchObject", "Sketch010")
body.addObject(sketch11)
sketch11.AttachmentSupport = (doc.XY_Plane, [""])
sketch11.MapMode = "FlatFace"
sketch11.AttachmentOffset = App.Placement(Vector(0, 0, -1.5), App.Rotation())
sketch11.addGeometry([
    Part.ArcOfCircle(Part.Circle(Vector(-2.85, 2.36, 0), Vector(0, 0, 1), 0.2), math.radians(80), math.radians(180)),  # 0
    Part.LineSegment(Vector(-3.05, 2.36, 0), Vector(-3.05, 2.27, 0)),  # 1
    Part.ArcOfCircle(Part.Circle(Vector(-2.85, 2.27, 0), Vector(0, 0, 1), 0.2), math.radians(180), math.radians(260)),  # 2
    Part.LineSegment(Vector(-2.88, 2.07, 0), Vector(0, 1.56, 0)),  # 3
    Part.LineSegment(Vector(0, 1.56, 0), Vector(2.88, 2.07, 0)),  # 4
    Part.ArcOfCircle(Part.Circle(Vector(2.85, 2.27, 0), Vector(0, 0, 1), 0.2), math.radians(-80), math.radians(0)),  # 5
    Part.LineSegment(Vector(3.05, 2.27, 0), Vector(3.05, 2.36, 0)),  # 6
    Part.ArcOfCircle(Part.Circle(Vector(2.85, 2.36, 0), Vector(0, 0, 1), 0.2), math.radians(0), math.radians(100)),  # 7
    Part.LineSegment(Vector(2.82, 2.56, 0), Vector(0, 2.06, 0)),  # 8
    Part.LineSegment(Vector(0, 2.06, 0), Vector(-2.82, 2.56, 0)),  # 9
], False)
sketch11.addConstraint([
    Sketcher.Constraint("Tangent", 0, 2, 1, 1),
    Sketcher.Constraint("Tangent", 1, 2, 2, 1),
    Sketcher.Constraint("Tangent", 2, 2, 3, 1),
    Sketcher.Constraint("Coincident", 3, 2, 4, 1),
    Sketcher.Constraint("Tangent", 4, 2, 5, 1),
    Sketcher.Constraint("Tangent", 5, 2, 6, 1),
    Sketcher.Constraint("Tangent", 6, 2, 7, 1),
    Sketcher.Constraint("Tangent", 7, 2, 8, 1),
    Sketcher.Constraint("Coincident", 8, 2, 9, 1),
    Sketcher.Constraint("Tangent", 9, 2, 0, 1),
    Sketcher.Constraint("Vertical", 1),
    Sketcher.Constraint("Vertical", 6),
    Sketcher.Constraint("Equal", 0, 2),
    Sketcher.Constraint("Equal", 2, 5),
    Sketcher.Constraint("Equal", 5, 7),
    Sketcher.Constraint("Symmetric", 2, 3, 5, 3, -2),
    Sketcher.Constraint("Symmetric", 7, 2, 9, 2, -2),
    Sketcher.Constraint("PointOnObject", 3, 2, -2),
    Sketcher.Constraint("Parallel", 4, 8),
    Sketcher.Constraint("Radius", 0, 0.2),
    Sketcher.Constraint("Angle", 3, Q("-10.001 deg")),
    Sketcher.Constraint("DistanceX", 2, 3, 5, 3, 5.7),
    Sketcher.Constraint("DistanceY", 3, 2, 8, 2, 0.5),
    Sketcher.Constraint("DistanceY", -1, 1, 4, 2, 2.071),
])
sketch11.setExpression("Constraints[19]", "Params.sketch11_radius")
pad4 = doc.addObject("PartDesign::Pad", "Pad003")
body.addObject(pad4)
pad4.Profile = sketch11
pad4.setExpression("Length", "Params.pad4_length")
pad4.Midplane = True

# Sketch on XY plane
sketch12 = doc.addObject("Sketcher::SketchObject", "Sketch011")
body.addObject(sketch12)
sketch12.AttachmentSupport = (doc.XY_Plane, [""])
sketch12.MapMode = "FlatFace"
sketch12.AttachmentOffset = App.Placement(Vector(0, 0, -50), App.Rotation())
sketch12.addGeometry(Part.Circle(Vector(-0.1, 2.9, 0), Vector(0, 0, 1), 0.5), False)
sketch12.addConstraint([
    Sketcher.Constraint("Diameter", 0, 1.0),
    Sketcher.Constraint("DistanceX", 0, 3, -1, 1, 0.1),
    Sketcher.Constraint("DistanceY", -1, 1, 0, 3, 2.9),
])
sketch12.setExpression("Constraints[0]", "Params.sketch12_diameter")
pad5 = doc.addObject("PartDesign::Pad", "Pad004")
body.addObject(pad5)
pad5.Profile = sketch12
pad5.setExpression("Length", "Params.pad5_length")
pad5.Reversed = True

# Sketch on XY plane
sketch13 = doc.addObject("Sketcher::SketchObject", "Sketch012")
body.addObject(sketch13)
sketch13.AttachmentSupport = (doc.XY_Plane, [""])
sketch13.MapMode = "FlatFace"
sketch13.AttachmentOffset = App.Placement(Vector(0, 0, -50), App.Rotation())
sketch13.addGeometry(Part.Circle(Vector(-0.1, 2.9, 0), Vector(0, 0, 1), 0.3), False)
sketch13.addConstraint([
    Sketcher.Constraint("Diameter", 0, 0.6),
    Sketcher.Constraint("DistanceX", 0, 3, -1, 1, 0.1),
    Sketcher.Constraint("DistanceY", -1, 1, 0, 3, 2.9),
])
sketch13.setExpression("Constraints[0]", "Params.sketch13_diameter")
pad6 = doc.addObject("PartDesign::Pad", "Pad005")
body.addObject(pad6)
pad6.Profile = sketch13
pad6.setExpression("Length", "Params.pad6_length")
pad6.Reversed = True

# Sketch on XY plane
sketch14 = doc.addObject("Sketcher::SketchObject", "Sketch013")
body.addObject(sketch14)
sketch14.AttachmentSupport = (doc.XY_Plane, [""])
sketch14.MapMode = "FlatFace"
sketch14.AttachmentOffset = App.Placement(Vector(0, 0, -50), App.Rotation())
sketch14.addGeometry(Part.Circle(Vector(-0.4, 2.3, 0), Vector(0, 0, 1), 0.5), False)
sketch14.addConstraint([
    Sketcher.Constraint("Diameter", 0, 1.0),
    Sketcher.Constraint("DistanceY", -1, 1, 0, 3, 2.3),
    Sketcher.Constraint("DistanceX", 0, 3, -1, 1, 0.4464),
])
sketch14.setExpression("Constraints[0]", "Params.sketch14_diameter")
pad7 = doc.addObject("PartDesign::Pad", "Pad006")
body.addObject(pad7)
pad7.Profile = sketch14
pad7.setExpression("Length", "Params.pad7_length")
pad7.Reversed = True

# Sketch on XY plane
sketch15 = doc.addObject("Sketcher::SketchObject", "Sketch014")
body.addObject(sketch15)
sketch15.AttachmentSupport = (doc.XY_Plane, [""])
sketch15.MapMode = "FlatFace"
sketch15.AttachmentOffset = App.Placement(Vector(0, 0, -50), App.Rotation())
sketch15.addGeometry(Part.Circle(Vector(-0.45, 2.3, 0), Vector(0, 0, 1), 0.3), False)
sketch15.addConstraint([
    Sketcher.Constraint("Diameter", 0, 0.6),
    Sketcher.Constraint("DistanceY", -1, 1, 0, 3, 2.3),
    Sketcher.Constraint("DistanceX", 0, 3, -1, 1, 0.4464),
])
sketch15.setExpression("Constraints[0]", "Params.sketch15_diameter")
pad8 = doc.addObject("PartDesign::Pad", "Pad007")
body.addObject(pad8)
pad8.Profile = sketch15
pad8.setExpression("Length", "Params.pad8_length")
pad8.Reversed = True

# Sketch on XY plane
sketch16 = doc.addObject("Sketcher::SketchObject", "Sketch015")
body.addObject(sketch16)
sketch16.AttachmentSupport = (doc.XY_Plane, [""])
sketch16.MapMode = "FlatFace"
sketch16.AttachmentOffset = App.Placement(Vector(0, 0, -50), App.Rotation())
sketch16.addGeometry(Part.Circle(Vector(0.2, 2.3, 0), Vector(0, 0, 1), 0.5), False)
sketch16.addConstraint([
    Sketcher.Constraint("Diameter", 0, 1.0),
    Sketcher.Constraint("DistanceY", -1, 1, 0, 3, 2.3),
    Sketcher.Constraint("DistanceX", -1, 1, 0, 3, 0.2464),
])
sketch16.setExpression("Constraints[0]", "Params.sketch16_diameter")
pad9 = doc.addObject("PartDesign::Pad", "Pad008")
body.addObject(pad9)
pad9.Profile = sketch16
pad9.setExpression("Length", "Params.pad9_length")
pad9.Reversed = True

# Sketch on XY plane
sketch17 = doc.addObject("Sketcher::SketchObject", "Sketch016")
body.addObject(sketch17)
sketch17.AttachmentSupport = (doc.XY_Plane, [""])
sketch17.MapMode = "FlatFace"
sketch17.AttachmentOffset = App.Placement(Vector(0, 0, -50), App.Rotation())
sketch17.addGeometry(Part.Circle(Vector(0.25, 2.3, 0), Vector(0, 0, 1), 0.3), False)
sketch17.addConstraint([
    Sketcher.Constraint("Diameter", 0, 0.6),
    Sketcher.Constraint("DistanceY", -1, 1, 0, 3, 2.3),
    Sketcher.Constraint("DistanceX", -1, 1, 0, 3, 0.2464),
])
sketch17.setExpression("Constraints[0]", "Params.sketch17_diameter")
pad10 = doc.addObject("PartDesign::Pad", "Pad009")
body.addObject(pad10)
pad10.Profile = sketch17
pad10.setExpression("Length", "Params.pad10_length")
pad10.Reversed = True

# Sketch on XY plane
sketch18 = doc.addObject("Sketcher::SketchObject", "Sketch017")
body.addObject(sketch18)
sketch18.AttachmentSupport = (doc.XY_Plane, [""])
sketch18.MapMode = "FlatFace"
sketch18.AttachmentOffset = App.Placement(Vector(0, 0, 27), App.Rotation())
sketch18.addGeometry([
    Part.ArcOfCircle(Part.Circle(Vector(-0.01, -2.44, 0), Vector(0, 0, 1), 7.73), math.radians(71.99), math.radians(75.08)),
    Part.LineSegment(Vector(2.38, 4.9, 0), Vector(2.38, 5.5, 0)),
    Part.LineSegment(Vector(2.38, 5.5, 0), Vector(1.98, 5.5, 0)),
    Part.LineSegment(Vector(1.98, 5.5, 0), Vector(1.98, 5.02, 0)),
], False)
sketch18.addConstraint([
    Sketcher.Constraint("Coincident", 0, 1, 1, 1),
    Sketcher.Constraint("Coincident", 1, 2, 2, 1),
    Sketcher.Constraint("Coincident", 2, 2, 3, 1),
    Sketcher.Constraint("Coincident", 3, 2, 0, 2),
    Sketcher.Constraint("Vertical", 1),
    Sketcher.Constraint("Horizontal", 2),
    Sketcher.Constraint("Vertical", 3),
    Sketcher.Constraint("DistanceX", 2, 2, 2, 1, 0.4),
    Sketcher.Constraint("Radius", 0, 7.726),
    Sketcher.Constraint("DistanceY", -1, 1, 1, 2, 5.5),
    Sketcher.Constraint("DistanceY", 1, 1, 1, 2, 0.5965),
    Sketcher.Constraint("DistanceY", 3, 2, 3, 1, 0.4783),
    Sketcher.Constraint("DistanceX", -1, 1, 0, 1, 2.375),
])
sketch18.setExpression("Constraints[7]", "Params.sketch18_width")
pocket4 = doc.addObject("PartDesign::Pocket", "Pocket003")
body.addObject(pocket4)
pocket4.Profile = sketch18
pocket4.setExpression("Length", "Params.pocket4_length")

# Sketch on XY plane
sketch19 = doc.addObject("Sketcher::SketchObject", "Sketch018")
body.addObject(sketch19)
sketch19.AttachmentSupport = (doc.XY_Plane, [""])
sketch19.MapMode = "FlatFace"
sketch19.AttachmentOffset = App.Placement(Vector(0, 0, 27), App.Rotation())
sketch19.addGeometry([
    Part.ArcOfCircle(Part.Circle(Vector(-0.01, -2.36, 0), Vector(0, 0, 1), 7.63), math.radians(104.9), math.radians(108.03)),
    Part.LineSegment(Vector(-1.98, 5.02, 0), Vector(-1.98, 5.5, 0)),
    Part.LineSegment(Vector(-1.98, 5.5, 0), Vector(-2.38, 5.5, 0)),
    Part.LineSegment(Vector(-2.38, 5.5, 0), Vector(-2.38, 4.9, 0)),
], False)
sketch19.addConstraint([
    Sketcher.Constraint("Coincident", 0, 1, 1, 1),
    Sketcher.Constraint("Coincident", 1, 2, 2, 1),
    Sketcher.Constraint("Coincident", 2, 2, 3, 1),
    Sketcher.Constraint("Coincident", 3, 2, 0, 2),
    Sketcher.Constraint("Vertical", 1),
    Sketcher.Constraint("Horizontal", 2),
    Sketcher.Constraint("Vertical", 3),
    Sketcher.Constraint("DistanceX", 2, 2, 2, 1, 0.4),
    Sketcher.Constraint("DistanceY", -1, 1, 1, 2, 5.5),
    Sketcher.Constraint("Radius", 0, 7.6345),
    Sketcher.Constraint("DistanceY", 1, 1, 1, 2, 0.4783),
    Sketcher.Constraint("DistanceY", 3, 2, 3, 1, 0.5965),
    Sketcher.Constraint("DistanceX", 0, 1, -1, 1, 1.975),
])
sketch19.setExpression("Constraints[7]", "Params.sketch19_width")
pocket5 = doc.addObject("PartDesign::Pocket", "Pocket004")
body.addObject(pocket5)
pocket5.Profile = sketch19
pocket5.setExpression("Length", "Params.pocket5_length")

doc.recompute()
